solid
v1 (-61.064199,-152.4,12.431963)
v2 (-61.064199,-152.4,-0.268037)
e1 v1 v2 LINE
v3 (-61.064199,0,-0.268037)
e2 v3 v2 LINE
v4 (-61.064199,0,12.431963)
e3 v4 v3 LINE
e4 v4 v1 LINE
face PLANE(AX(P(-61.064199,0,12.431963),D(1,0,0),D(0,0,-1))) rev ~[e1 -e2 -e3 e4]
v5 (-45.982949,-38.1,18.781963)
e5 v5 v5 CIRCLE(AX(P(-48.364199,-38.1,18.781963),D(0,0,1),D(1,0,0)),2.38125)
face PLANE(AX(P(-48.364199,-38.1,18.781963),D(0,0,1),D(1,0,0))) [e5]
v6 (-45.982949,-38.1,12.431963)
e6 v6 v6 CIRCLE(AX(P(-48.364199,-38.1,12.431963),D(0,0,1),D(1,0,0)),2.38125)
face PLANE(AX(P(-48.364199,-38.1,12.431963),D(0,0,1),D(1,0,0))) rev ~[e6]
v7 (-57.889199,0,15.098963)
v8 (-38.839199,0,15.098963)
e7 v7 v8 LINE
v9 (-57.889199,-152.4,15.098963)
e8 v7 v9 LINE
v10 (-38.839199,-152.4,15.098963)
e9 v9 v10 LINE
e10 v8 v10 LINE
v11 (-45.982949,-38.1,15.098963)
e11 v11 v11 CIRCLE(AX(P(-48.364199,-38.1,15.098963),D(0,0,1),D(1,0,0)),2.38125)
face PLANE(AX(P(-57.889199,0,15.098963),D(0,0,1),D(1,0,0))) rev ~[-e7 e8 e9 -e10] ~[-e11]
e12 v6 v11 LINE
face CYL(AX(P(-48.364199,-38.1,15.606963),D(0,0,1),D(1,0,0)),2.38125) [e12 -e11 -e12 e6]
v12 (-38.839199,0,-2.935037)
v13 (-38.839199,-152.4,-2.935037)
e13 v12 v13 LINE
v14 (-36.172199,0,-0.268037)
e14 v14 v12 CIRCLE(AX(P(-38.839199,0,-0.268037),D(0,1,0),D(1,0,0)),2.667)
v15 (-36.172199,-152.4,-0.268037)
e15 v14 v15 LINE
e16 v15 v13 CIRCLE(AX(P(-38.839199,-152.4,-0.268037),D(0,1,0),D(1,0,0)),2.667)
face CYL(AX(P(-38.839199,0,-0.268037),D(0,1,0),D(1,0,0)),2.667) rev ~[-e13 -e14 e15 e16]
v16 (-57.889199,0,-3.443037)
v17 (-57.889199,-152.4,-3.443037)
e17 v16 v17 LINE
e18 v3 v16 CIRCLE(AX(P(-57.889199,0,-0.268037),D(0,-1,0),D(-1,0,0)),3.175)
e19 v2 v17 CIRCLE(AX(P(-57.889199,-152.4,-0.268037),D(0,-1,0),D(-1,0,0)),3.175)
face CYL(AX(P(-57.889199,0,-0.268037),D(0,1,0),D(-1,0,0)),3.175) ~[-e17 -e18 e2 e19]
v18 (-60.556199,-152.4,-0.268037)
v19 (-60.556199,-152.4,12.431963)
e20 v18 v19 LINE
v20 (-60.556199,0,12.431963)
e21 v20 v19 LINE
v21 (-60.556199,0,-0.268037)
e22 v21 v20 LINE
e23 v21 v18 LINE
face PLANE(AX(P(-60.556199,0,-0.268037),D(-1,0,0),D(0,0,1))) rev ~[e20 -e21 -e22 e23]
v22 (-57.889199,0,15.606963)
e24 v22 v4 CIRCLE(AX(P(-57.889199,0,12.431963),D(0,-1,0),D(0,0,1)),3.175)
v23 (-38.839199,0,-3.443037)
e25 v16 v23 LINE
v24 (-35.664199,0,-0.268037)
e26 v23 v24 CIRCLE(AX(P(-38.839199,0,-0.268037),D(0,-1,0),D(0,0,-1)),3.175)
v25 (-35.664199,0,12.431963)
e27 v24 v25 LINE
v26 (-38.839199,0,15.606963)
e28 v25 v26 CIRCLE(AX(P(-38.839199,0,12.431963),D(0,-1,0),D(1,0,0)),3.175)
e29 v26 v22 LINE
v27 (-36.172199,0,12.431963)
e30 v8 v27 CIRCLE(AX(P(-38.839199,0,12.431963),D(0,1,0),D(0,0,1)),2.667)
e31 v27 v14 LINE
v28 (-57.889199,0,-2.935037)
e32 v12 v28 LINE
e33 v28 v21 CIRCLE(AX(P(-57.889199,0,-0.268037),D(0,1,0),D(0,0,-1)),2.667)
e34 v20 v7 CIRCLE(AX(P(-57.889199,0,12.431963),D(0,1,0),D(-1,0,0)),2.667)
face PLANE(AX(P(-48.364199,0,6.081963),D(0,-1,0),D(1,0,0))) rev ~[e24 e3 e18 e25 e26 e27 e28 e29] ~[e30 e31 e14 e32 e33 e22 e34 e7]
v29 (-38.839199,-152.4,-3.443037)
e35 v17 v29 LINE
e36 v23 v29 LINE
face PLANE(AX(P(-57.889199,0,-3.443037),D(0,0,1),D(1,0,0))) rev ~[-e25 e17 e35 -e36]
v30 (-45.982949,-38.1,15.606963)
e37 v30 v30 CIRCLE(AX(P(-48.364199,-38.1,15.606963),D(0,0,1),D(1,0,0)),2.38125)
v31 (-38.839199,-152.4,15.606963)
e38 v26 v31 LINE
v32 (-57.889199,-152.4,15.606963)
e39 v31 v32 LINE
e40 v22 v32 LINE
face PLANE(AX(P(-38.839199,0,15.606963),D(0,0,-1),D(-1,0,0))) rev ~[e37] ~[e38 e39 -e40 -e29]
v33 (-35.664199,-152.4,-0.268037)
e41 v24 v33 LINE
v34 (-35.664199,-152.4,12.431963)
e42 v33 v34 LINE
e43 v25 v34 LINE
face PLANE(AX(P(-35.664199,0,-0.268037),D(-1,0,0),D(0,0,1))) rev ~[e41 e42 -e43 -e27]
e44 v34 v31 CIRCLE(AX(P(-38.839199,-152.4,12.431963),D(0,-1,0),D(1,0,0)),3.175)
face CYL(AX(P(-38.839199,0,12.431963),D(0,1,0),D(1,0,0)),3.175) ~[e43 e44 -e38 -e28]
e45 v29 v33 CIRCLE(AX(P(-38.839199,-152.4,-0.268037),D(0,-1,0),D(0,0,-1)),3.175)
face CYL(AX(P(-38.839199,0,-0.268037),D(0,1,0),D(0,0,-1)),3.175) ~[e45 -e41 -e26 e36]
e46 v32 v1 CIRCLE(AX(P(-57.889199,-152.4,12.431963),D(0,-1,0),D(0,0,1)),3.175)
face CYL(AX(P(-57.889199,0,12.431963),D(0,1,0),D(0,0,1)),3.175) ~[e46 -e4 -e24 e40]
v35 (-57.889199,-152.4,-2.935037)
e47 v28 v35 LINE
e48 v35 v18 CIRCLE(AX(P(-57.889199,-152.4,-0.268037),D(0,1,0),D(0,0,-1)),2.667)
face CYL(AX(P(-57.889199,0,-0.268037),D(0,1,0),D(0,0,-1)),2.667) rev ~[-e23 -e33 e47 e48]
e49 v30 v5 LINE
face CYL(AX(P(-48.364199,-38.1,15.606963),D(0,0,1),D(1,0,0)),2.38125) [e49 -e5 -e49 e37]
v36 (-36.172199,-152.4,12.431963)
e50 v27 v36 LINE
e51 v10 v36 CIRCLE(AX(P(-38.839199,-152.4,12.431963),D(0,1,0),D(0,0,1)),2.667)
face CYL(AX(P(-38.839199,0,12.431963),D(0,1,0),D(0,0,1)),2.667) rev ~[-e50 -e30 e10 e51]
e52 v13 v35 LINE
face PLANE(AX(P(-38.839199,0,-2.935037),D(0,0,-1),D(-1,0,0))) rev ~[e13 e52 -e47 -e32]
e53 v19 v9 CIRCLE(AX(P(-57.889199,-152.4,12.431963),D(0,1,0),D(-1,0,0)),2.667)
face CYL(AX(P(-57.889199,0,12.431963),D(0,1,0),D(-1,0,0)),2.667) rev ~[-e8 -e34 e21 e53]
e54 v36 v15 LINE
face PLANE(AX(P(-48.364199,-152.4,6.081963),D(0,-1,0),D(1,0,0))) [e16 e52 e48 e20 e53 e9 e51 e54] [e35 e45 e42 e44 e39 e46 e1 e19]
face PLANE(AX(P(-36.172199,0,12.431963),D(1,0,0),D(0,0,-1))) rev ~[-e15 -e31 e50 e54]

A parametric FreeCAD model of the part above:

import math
import FreeCAD as App
import Part
import Sketcher
Q = App.Units.Quantity

doc = App.newDocument("Part")
params = doc.addObject("Spreadsheet::Sheet", "Params")
for row, (alias, value) in enumerate([
    ("sketch1_height", "0.5 in"),
    ("sketch1_radius", "0.125 in"),
    ("sketch1_radius2", "0.105 in"),
    ("sketch1_width", "0.75 in"),
    ("pad1_length", "6 in"),
    ("sketch2_diameter", "0.1875 in"),
    ("pad2_length", "0.25 in"),
], start=1):
    params.set(f"A{row}", alias)
    params.set(f"B{row}", "=" + value)
    params.setAlias(f"B{row}", alias)

body = doc.addObject("PartDesign::Body", "Body")

# Sketch on XZ plane
sketch1 = body.newObject("Sketcher::SketchObject", "Sketch")
sketch1.AttachmentSupport = (doc.getObject("XZ_Plane"), [""])
sketch1.MapMode = "FlatFace"
sketch1.addGeometry([
    Part.LineSegment(App.Vector(-57.9, -3.4, 0), App.Vector(-38.8, -3.4, 0)),  # 0
    Part.ArcOfCircle(Part.Circle(App.Vector(-38.8, -0.3, 0), App.Vector(0, 0, 1), 3.2), math.radians(-90), math.radians(0)),  # 1
    Part.LineSegment(App.Vector(-35.7, -0.3, 0), App.Vector(-35.7, 12.4, 0)),  # 2
    Part.ArcOfCircle(Part.Circle(App.Vector(-38.8, 12.4, 0), App.Vector(0, 0, 1), 3.2), math.radians(0), math.radians(90)),  # 3
    Part.LineSegment(App.Vector(-38.8, 15.6, 0), App.Vector(-57.9, 15.6, 0)),  # 4
    Part.ArcOfCircle(Part.Circle(App.Vector(-57.9, 12.4, 0), App.Vector(0, 0, 1), 3.2), math.radians(90), math.radians(180)),  # 5
    Part.LineSegment(App.Vector(-61.1, 12.4, 0), App.Vector(-61.1, -0.3, 0)),  # 6
    Part.ArcOfCircle(Part.Circle(App.Vector(-57.9, -0.3, 0), App.Vector(0, 0, 1), 3.2), math.radians(180), math.radians(270)),  # 7
    Part.LineSegment(App.Vector(-38.8, -2.9, 0), App.Vector(-57.9, -2.9, 0)),  # 8
    Part.ArcOfCircle(Part.Circle(App.Vector(-57.9, -0.3, 0), App.Vector(0, 0, 1), 2.7), math.radians(180), math.radians(270)),  # 9
    Part.LineSegment(App.Vector(-60.6, -0.3, 0), App.Vector(-60.6, 12.4, 0)),  # 10
    Part.ArcOfCircle(Part.Circle(App.Vector(-57.9, 12.4, 0), App.Vector(0, 0, 1), 2.7), math.radians(90), math.radians(180)),  # 11
    Part.LineSegment(App.Vector(-57.9, 15.1, 0), App.Vector(-38.8, 15.1, 0)),  # 12
    Part.ArcOfCircle(Part.Circle(App.Vector(-38.8, 12.4, 0), App.Vector(0, 0, 1), 2.7), math.radians(0), math.radians(90)),  # 13
    Part.LineSegment(App.Vector(-36.2, 12.4, 0), App.Vector(-36.2, -0.3, 0)),  # 14
    Part.ArcOfCircle(Part.Circle(App.Vector(-38.8, -0.3, 0), App.Vector(0, 0, 1), 2.7), math.radians(-90), math.radians(0)),  # 15
], False)
sketch1.addConstraint([
    Sketcher.Constraint("Tangent", 0, 2, 1, 1),
    Sketcher.Constraint("Tangent", 1, 2, 2, 1),
    Sketcher.Constraint("Tangent", 2, 2, 3, 1),
    Sketcher.Constraint("Tangent", 3, 2, 4, 1),
    Sketcher.Constraint("Tangent", 4, 2, 5, 1),
    Sketcher.Constraint("Tangent", 5, 2, 6, 1),
    Sketcher.Constraint("Tangent", 6, 2, 7, 1),
    Sketcher.Constraint("Tangent", 7, 2, 0, 1),
    Sketcher.Constraint("Tangent", 8, 2, 9, 2),
    Sketcher.Constraint("Tangent", 9, 1, 10, 1),
    Sketcher.Constraint("Tangent", 10, 2, 11, 2),
    Sketcher.Constraint("Tangent", 11, 1, 12, 1),
    Sketcher.Constraint("Tangent", 12, 2, 13, 2),
    Sketcher.Constraint("Tangent", 13, 1, 14, 1),
    Sketcher.Constraint("Tangent", 14, 2, 15, 2),
    Sketcher.Constraint("Tangent", 15, 1, 8, 1),
    Sketcher.Constraint("Horizontal", 0),
    Sketcher.Constraint("Vertical", 2),
    Sketcher.Constraint("Horizontal", 4),
    Sketcher.Constraint("Vertical", 6),
    Sketcher.Constraint("Horizontal", 8),
    Sketcher.Constraint("Vertical", 10),
    Sketcher.Constraint("Horizontal", 12),
    Sketcher.Constraint("Vertical", 14),
    Sketcher.Constraint("Coincident", 9, 3, 7, 3),
    Sketcher.Constraint("Coincident", 11, 3, 5, 3),
    Sketcher.Constraint("Coincident", 13, 3, 3, 3),
    Sketcher.Constraint("Equal", 1, 3),
    Sketcher.Constraint("Equal", 3, 5),
    Sketcher.Constraint("Equal", 5, 7),
    Sketcher.Constraint("Equal", 13, 15),
    Sketcher.Constraint("DistanceY", 2, 1, 2, 2, Q("0.5 in")),
    Sketcher.Constraint("Radius", 1, Q("0.125 in")),
    Sketcher.Constraint("Radius", 9, Q("0.105 in")),
    Sketcher.Constraint("DistanceX", 0, 1, 0, 2, Q("0.75 in")),
    Sketcher.Constraint("DistanceX", 1, 3, -1, 1, Q("38.839199 mm")),
    Sketcher.Constraint("DistanceY", 1, 3, -1, 1, Q("0.268037 mm")),
])
sketch1.setExpression("Constraints[31]", "Params.sketch1_height")
sketch1.setExpression("Constraints[32]", "Params.sketch1_radius")
sketch1.setExpression("Constraints[33]", "Params.sketch1_radius2")
sketch1.setExpression("Constraints[34]", "Params.sketch1_width")
pad1 = body.newObject("PartDesign::Pad", "Pad")
pad1.Profile = sketch1
pad1.setExpression("Length", "Params.pad1_length")

# Sketch on XY plane
sketch2 = body.newObject("Sketcher::SketchObject", "Sketch001")
sketch2.AttachmentSupport = (doc.getObject("XY_Plane"), [""])
sketch2.MapMode = "FlatFace"
sketch2.AttachmentOffset = App.Placement(App.Vector(0, 0, 15.606963), App.Rotation())
sketch2.addGeometry(Part.Circle(App.Vector(-48.4, -38.1, 0), App.Vector(0, 0, 1), 2.4), False)
sketch2.addConstraint([
    Sketcher.Constraint("Diameter", 0, Q("0.1875 in")),
    Sketcher.Constraint("DistanceY", 0, 3, -1, 1, Q("1.5 in")),
    Sketcher.Constraint("DistanceX", 0, 3, -1, 1, Q("48.364199 mm")),
])
sketch2.setExpression("Constraints[0]", "Params.sketch2_diameter")
pad2 = body.newObject("PartDesign::Pad", "Pad001")
pad2.Profile = sketch2
pad2.setExpression("Length", "Params.pad2_length")
pad2.Midplane = True

doc.recompute()
